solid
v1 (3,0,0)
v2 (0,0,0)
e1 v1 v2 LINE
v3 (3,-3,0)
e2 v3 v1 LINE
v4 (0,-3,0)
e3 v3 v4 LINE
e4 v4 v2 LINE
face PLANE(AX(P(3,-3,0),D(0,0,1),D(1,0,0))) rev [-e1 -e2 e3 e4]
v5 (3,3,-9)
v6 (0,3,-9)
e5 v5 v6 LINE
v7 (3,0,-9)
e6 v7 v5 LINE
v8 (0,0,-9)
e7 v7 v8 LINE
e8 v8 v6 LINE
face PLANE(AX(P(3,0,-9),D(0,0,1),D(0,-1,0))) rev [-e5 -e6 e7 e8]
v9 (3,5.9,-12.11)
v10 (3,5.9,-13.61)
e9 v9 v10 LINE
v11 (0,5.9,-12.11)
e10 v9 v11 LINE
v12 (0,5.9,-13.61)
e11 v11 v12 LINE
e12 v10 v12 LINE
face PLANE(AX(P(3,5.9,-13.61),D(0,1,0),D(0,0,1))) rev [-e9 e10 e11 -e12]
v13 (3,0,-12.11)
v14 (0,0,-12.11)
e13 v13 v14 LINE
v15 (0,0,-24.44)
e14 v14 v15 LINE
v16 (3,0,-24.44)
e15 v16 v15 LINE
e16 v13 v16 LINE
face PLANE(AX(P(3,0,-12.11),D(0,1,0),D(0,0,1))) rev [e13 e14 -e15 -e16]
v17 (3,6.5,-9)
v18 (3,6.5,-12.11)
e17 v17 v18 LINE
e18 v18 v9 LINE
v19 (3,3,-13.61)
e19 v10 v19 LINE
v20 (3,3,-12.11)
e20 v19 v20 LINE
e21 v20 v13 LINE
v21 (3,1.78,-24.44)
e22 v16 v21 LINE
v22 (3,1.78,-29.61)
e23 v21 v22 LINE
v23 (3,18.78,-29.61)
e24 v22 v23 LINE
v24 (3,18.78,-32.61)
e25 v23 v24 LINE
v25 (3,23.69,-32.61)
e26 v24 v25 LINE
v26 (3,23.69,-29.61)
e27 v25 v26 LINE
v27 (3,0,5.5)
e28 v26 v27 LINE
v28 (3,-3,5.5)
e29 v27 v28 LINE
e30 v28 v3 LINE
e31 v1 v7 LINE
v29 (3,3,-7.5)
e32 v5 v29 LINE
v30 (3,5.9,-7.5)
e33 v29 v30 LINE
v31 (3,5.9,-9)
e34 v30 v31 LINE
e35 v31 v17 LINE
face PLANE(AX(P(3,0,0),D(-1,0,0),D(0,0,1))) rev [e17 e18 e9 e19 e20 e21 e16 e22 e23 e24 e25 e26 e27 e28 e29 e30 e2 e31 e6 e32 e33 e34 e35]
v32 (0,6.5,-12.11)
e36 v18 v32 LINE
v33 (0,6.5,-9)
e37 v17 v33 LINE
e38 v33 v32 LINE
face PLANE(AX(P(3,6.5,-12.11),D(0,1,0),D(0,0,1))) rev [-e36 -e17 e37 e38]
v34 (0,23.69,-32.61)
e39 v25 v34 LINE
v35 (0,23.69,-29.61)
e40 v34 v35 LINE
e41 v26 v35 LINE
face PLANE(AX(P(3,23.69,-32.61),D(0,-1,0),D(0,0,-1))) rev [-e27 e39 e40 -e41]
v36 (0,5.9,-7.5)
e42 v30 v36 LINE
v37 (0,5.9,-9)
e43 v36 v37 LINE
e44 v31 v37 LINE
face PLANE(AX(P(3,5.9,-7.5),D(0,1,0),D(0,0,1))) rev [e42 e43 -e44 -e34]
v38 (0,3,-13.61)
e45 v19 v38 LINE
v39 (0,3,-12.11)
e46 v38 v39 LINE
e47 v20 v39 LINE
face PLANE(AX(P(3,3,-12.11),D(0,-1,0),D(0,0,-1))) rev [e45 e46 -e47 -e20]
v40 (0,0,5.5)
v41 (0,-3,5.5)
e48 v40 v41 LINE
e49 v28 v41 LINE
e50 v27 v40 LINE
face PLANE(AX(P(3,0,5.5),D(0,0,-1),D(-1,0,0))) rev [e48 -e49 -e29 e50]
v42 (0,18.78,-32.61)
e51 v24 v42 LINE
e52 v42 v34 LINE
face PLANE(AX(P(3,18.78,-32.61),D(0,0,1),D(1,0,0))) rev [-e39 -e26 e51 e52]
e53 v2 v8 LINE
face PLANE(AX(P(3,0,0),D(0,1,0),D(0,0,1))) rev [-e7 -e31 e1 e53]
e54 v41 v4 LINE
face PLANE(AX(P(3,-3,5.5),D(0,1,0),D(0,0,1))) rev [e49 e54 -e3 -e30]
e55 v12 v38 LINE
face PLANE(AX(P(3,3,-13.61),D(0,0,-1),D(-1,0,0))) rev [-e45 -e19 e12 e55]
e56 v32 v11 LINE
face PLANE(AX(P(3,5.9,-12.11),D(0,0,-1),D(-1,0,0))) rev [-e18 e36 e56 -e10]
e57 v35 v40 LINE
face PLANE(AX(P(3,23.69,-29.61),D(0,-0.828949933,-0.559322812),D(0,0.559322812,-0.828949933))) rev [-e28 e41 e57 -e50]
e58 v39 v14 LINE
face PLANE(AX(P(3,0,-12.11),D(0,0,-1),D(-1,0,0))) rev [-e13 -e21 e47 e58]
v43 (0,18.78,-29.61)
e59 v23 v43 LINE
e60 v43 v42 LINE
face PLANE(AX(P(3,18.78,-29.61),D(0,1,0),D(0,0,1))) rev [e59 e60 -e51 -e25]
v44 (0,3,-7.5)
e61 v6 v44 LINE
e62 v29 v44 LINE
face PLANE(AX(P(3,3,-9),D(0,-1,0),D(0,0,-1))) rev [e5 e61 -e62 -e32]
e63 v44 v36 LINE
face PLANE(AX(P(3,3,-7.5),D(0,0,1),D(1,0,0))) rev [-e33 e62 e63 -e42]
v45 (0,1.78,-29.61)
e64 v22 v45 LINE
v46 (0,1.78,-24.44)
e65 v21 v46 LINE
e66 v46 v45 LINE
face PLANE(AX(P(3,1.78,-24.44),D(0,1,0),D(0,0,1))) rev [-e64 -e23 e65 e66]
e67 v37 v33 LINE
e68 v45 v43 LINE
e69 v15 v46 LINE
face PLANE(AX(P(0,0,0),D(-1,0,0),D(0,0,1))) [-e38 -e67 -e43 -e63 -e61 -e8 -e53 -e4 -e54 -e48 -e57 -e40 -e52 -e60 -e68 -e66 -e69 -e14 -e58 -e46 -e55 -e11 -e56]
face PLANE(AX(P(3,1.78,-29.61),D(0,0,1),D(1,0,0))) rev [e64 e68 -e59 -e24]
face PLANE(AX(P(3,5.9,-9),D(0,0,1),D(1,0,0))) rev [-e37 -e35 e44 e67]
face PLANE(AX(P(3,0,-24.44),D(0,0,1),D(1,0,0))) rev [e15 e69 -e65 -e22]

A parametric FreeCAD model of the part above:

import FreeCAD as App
import Part
import Sketcher

V = App.Vector


def add_polygon(sketch, points):
    """Adds a closed chain of lines whose ends are joined by coincident constraints."""
    first, n = sketch.GeometryCount, len(points)
    for a, b in zip(points, points[1:] + points[:1]):
        sketch.addGeometry(Part.LineSegment(App.Vector(*a, 0), App.Vector(*b, 0)), False)
    for i in range(n):
        sketch.addConstraint(Sketcher.Constraint("Coincident", first + i, 2, first + (i + 1) % n, 1))

doc = App.newDocument("Part")
body = doc.addObject("PartDesign::Body", "Body")

# Sketch on YZ plane
sketch1 = doc.addObject("Sketcher::SketchObject", "Sketch")
body.addObject(sketch1)
sketch1.AttachmentSupport = (doc.YZ_Plane, [""])
sketch1.MapMode = "FlatFace"
add_polygon(sketch1, [(0, 0), (0, -9), (3, -9), (3, -7.5), (5.9, -7.5), (5.9, -9), (6.5, -9), (6.5, -12.1), (5.9, -12.1), (5.9, -13.6), (3, -13.6), (3, -12.1), (0, -12.1), (0, -24.4), (1.8, -24.4), (1.8, -29.6), (18.8, -29.6), (18.8, -32.6), (23.7, -32.6), (23.7, -29.6), (0, 5.5), (-3, 5.5), (-3, 0)])  # lines 0-22
sketch1.addConstraint(Sketcher.Constraint("Vertical", 0))
sketch1.addConstraint(Sketcher.Constraint("Horizontal", 1))
sketch1.addConstraint(Sketcher.Constraint("Vertical", 2))
sketch1.addConstraint(Sketcher.Constraint("Horizontal", 3))
sketch1.addConstraint(Sketcher.Constraint("Vertical", 4))
sketch1.addConstraint(Sketcher.Constraint("Horizontal", 5))
sketch1.addConstraint(Sketcher.Constraint("Vertical", 6))
sketch1.addConstraint(Sketcher.Constraint("Horizontal", 7))
sketch1.addConstraint(Sketcher.Constraint("Vertical", 8))
sketch1.addConstraint(Sketcher.Constraint("Horizontal", 9))
sketch1.addConstraint(Sketcher.Constraint("Vertical", 10))
sketch1.addConstraint(Sketcher.Constraint("Horizontal", 11))
sketch1.addConstraint(Sketcher.Constraint("Vertical", 12))
sketch1.addConstraint(Sketcher.Constraint("Horizontal", 13))
sketch1.addConstraint(Sketcher.Constraint("Vertical", 14))
sketch1.addConstraint(Sketcher.Constraint("Horizontal", 15))
sketch1.addConstraint(Sketcher.Constraint("Vertical", 16))
sketch1.addConstraint(Sketcher.Constraint("Horizontal", 17))
sketch1.addConstraint(Sketcher.Constraint("Vertical", 18))
sketch1.addConstraint(Sketcher.Constraint("Horizontal", 20))
sketch1.addConstraint(Sketcher.Constraint("Vertical", 21))
sketch1.addConstraint(Sketcher.Constraint("Horizontal", 22))
sketch1.addConstraint(Sketcher.Constraint("Coincident", 22, 2, -1, 1))
sketch1.addConstraint(Sketcher.Constraint("PointOnObject", 11, 2, -2))
sketch1.addConstraint(Sketcher.Constraint("PointOnObject", 19, 2, -2))
sketch1.addConstraint(Sketcher.Constraint("Horizontal", 1, 2, 4, 2))
sketch1.addConstraint(Sketcher.Constraint("Horizontal", 7, 2, 10, 2))
sketch1.addConstraint(Sketcher.Constraint("Horizontal", 15, 2, 18, 2))
sketch1.addConstraint(Sketcher.Constraint("Vertical", 4, 2, 7, 2))
sketch1.addConstraint(Sketcher.Constraint("Vertical", 2, 2, 9, 2))
sketch1.addConstraint(Sketcher.Constraint("Equal", 11, 20))
sketch1.addConstraint(Sketcher.Constraint("Equal", 4, 8))
sketch1.addConstraint(Sketcher.Constraint("Equal", 22, 16))
sketch1.addConstraint(Sketcher.Constraint("DistanceX", 1, 1, 1, 2, 3.0))
sketch1.addConstraint(Sketcher.Constraint("DistanceX", 15, 1, 15, 2, 17.0))
sketch1.addConstraint(Sketcher.Constraint("DistanceY", 0, 2, 0, 1, 9.0))
sketch1.addConstraint(Sketcher.Constraint("DistanceX", 3, 1, 3, 2, 2.9))
sketch1.addConstraint(Sketcher.Constraint("DistanceX", 5, 1, 5, 2, 0.6))
sketch1.addConstraint(Sketcher.Constraint("DistanceY", 2, 1, 2, 2, 1.5))
sketch1.addConstraint(Sketcher.Constraint("DistanceY", 21, 2, 21, 1, 5.5))
sketch1.addConstraint(Sketcher.Constraint("DistanceY", 14, 2, 9, 2, 16.0))
sketch1.addConstraint(Sketcher.Constraint("DistanceX", 13, 1, 13, 2, 1.78))
sketch1.addConstraint(Sketcher.Constraint("DistanceX", 17, 1, 17, 2, 4.91))
sketch1.addConstraint(Sketcher.Constraint("DistanceY", 6, 2, 6, 1, 3.11))
sketch1.addConstraint(Sketcher.Constraint("DistanceY", 12, 2, 12, 1, 12.33))
pad1 = doc.addObject("PartDesign::Pad", "Pad")
body.addObject(pad1)
pad1.Profile = sketch1
pad1.Length = 3

doc.recompute()
